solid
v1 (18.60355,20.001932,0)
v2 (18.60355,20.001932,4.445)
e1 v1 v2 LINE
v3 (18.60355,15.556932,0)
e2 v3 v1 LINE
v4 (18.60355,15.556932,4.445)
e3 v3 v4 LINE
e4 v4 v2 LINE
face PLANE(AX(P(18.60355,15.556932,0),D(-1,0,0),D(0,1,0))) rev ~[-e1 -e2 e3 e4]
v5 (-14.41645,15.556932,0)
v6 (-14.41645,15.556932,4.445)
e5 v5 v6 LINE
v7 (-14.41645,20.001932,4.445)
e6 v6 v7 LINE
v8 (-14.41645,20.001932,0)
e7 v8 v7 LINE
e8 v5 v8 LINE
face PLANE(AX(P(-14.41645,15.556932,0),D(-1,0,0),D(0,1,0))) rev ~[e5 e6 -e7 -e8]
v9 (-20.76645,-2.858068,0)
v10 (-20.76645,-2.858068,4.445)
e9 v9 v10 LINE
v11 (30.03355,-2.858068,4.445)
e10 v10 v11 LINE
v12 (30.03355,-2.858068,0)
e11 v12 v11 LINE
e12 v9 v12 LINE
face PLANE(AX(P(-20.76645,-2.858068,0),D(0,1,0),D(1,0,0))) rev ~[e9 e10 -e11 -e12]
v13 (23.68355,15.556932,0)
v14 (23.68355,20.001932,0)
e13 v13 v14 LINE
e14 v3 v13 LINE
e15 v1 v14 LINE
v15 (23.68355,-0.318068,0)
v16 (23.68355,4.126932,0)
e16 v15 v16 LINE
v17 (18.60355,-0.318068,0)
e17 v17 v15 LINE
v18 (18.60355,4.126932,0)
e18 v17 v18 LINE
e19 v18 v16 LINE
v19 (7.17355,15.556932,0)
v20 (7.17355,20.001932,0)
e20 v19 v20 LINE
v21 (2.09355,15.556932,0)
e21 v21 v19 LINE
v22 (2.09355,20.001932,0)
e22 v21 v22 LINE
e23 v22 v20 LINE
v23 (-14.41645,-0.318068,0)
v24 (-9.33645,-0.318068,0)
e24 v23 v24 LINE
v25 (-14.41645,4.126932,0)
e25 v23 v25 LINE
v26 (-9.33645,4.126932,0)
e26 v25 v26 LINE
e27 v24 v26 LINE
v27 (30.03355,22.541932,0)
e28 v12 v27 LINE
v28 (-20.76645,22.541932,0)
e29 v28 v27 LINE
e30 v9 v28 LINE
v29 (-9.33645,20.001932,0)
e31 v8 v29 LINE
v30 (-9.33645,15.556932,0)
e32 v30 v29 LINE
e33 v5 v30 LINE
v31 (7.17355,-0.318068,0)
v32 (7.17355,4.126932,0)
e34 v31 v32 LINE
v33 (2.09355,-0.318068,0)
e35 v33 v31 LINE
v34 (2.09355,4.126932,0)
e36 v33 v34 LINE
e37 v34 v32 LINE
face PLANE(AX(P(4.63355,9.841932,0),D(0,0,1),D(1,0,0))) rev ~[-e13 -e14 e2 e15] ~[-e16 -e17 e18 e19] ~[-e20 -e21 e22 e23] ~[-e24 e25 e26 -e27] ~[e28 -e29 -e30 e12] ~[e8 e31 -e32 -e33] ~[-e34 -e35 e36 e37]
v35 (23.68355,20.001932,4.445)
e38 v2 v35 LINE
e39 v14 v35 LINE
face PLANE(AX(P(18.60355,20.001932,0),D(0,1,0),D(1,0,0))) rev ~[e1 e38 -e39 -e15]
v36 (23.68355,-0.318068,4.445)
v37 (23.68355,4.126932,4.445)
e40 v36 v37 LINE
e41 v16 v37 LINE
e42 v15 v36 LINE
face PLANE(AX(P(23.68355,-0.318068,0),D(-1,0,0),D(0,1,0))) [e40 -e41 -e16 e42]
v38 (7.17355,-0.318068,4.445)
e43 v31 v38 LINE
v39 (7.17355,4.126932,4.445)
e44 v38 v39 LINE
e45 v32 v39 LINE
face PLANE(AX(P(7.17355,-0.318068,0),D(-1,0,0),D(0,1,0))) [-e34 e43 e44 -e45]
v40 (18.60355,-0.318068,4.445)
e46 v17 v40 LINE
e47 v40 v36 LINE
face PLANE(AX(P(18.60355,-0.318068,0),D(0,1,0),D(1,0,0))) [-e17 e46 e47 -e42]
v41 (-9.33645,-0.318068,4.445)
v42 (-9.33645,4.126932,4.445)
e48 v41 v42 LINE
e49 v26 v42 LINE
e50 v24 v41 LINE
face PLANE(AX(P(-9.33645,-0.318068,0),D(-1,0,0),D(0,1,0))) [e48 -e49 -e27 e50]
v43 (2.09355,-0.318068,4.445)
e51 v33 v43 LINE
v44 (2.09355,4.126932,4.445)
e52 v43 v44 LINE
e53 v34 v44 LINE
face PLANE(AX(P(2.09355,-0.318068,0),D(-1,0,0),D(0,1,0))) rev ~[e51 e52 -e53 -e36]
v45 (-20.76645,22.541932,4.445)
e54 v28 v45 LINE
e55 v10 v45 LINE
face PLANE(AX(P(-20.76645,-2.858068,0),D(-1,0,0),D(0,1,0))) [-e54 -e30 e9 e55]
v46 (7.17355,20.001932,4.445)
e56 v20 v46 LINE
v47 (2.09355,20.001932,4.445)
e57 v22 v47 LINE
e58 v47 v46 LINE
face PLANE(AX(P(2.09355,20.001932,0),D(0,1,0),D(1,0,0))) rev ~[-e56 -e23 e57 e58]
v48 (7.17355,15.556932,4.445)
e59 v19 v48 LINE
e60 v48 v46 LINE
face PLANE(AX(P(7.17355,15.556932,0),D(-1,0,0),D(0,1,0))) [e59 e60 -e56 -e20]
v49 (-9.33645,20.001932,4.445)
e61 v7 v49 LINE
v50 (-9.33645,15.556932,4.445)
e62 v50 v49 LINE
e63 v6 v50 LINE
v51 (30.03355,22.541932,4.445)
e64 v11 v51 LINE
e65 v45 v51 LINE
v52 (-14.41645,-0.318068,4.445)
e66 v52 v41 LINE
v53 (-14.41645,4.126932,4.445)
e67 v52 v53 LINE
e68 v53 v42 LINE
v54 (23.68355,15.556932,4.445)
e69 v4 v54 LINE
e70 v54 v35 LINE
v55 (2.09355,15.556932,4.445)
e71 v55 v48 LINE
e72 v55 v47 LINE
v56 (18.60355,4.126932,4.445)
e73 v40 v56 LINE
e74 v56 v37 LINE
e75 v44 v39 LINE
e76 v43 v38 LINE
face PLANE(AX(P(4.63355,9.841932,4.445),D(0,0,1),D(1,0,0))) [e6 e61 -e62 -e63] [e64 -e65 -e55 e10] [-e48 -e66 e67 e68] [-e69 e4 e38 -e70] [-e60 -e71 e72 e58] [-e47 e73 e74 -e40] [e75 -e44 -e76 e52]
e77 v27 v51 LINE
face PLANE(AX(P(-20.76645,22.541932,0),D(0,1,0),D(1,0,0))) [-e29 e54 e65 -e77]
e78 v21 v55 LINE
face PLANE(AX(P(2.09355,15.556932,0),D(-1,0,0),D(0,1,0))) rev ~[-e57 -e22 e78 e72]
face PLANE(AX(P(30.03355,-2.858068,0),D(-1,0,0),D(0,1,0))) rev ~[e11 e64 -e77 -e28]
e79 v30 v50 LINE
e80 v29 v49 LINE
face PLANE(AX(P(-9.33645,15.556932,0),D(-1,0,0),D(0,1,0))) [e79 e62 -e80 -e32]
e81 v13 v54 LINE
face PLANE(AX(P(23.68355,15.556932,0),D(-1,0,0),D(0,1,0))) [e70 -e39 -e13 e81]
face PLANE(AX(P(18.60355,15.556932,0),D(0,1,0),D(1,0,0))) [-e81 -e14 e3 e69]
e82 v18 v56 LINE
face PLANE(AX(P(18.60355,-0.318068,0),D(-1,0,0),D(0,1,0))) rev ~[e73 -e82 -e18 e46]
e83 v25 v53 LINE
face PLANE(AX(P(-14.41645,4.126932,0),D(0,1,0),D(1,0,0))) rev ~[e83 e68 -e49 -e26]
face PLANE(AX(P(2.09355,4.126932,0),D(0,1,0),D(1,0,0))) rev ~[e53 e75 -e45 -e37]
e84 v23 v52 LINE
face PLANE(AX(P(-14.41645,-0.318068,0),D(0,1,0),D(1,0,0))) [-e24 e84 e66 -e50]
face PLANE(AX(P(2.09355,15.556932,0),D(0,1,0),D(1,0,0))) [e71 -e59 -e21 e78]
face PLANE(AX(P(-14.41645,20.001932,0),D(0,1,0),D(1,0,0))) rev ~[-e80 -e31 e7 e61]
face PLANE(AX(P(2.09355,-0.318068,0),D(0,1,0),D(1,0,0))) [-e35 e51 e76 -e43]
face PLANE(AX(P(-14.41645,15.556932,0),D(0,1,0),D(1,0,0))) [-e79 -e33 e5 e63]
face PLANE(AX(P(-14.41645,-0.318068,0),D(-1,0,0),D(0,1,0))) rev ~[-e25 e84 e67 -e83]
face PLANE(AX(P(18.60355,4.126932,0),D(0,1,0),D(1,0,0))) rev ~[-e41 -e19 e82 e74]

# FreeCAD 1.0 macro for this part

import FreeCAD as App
import Part
import Sketcher
from FreeCAD import Vector
Q = App.Units.Quantity


def add_polygon(sketch, points):
    """Adds a closed chain of lines whose ends are joined by coincident constraints."""
    first, n = sketch.GeometryCount, len(points)
    for a, b in zip(points, points[1:] + points[:1]):
        sketch.addGeometry(Part.LineSegment(App.Vector(*a, 0), App.Vector(*b, 0)), False)
    for i in range(n):
        sketch.addConstraint(Sketcher.Constraint("Coincident", first + i, 2, first + (i + 1) % n, 1))

doc = App.newDocument("Part")
body = doc.addObject("PartDesign::Body", "Body")

# Sketch on XY plane
sketch1 = body.newObject("Sketcher::SketchObject", "Sketch")
sketch1.AttachmentSupport = (doc.getObject("XY_Plane"), [""])
sketch1.MapMode = "FlatFace"
add_polygon(sketch1, [(-20.76645, 22.541932), (-20.76645, -2.858068), (30.03355, -2.858068), (30.03355, 22.541932)])  # lines 0-3
add_polygon(sketch1, [(-9.33645, -0.318068), (-14.41645, -0.318068), (-14.41645, 4.126932), (-9.33645, 4.126932)])  # lines 4-7
add_polygon(sketch1, [(7.17355, -0.318068), (2.09355, -0.318068), (2.09355, 4.126932), (7.17355, 4.126932)])  # lines 8-11
add_polygon(sketch1, [(23.68355, -0.318068), (18.60355, -0.318068), (18.60355, 4.126932), (23.68355, 4.126932)])  # lines 12-15
add_polygon(sketch1, [(-9.33645, 15.556932), (-14.41645, 15.556932), (-14.41645, 20.001932), (-9.33645, 20.001932)])  # lines 16-19
add_polygon(sketch1, [(7.17355, 15.556932), (2.09355, 15.556932), (2.09355, 20.001932), (7.17355, 20.001932)])  # lines 20-23
add_polygon(sketch1, [(23.68355, 15.556932), (18.60355, 15.556932), (18.60355, 20.001932), (23.68355, 20.001932)])  # lines 24-27
sketch1.addConstraint(Sketcher.Constraint("Vertical", 0))
sketch1.addConstraint(Sketcher.Constraint("Horizontal", 1))
sketch1.addConstraint(Sketcher.Constraint("Vertical", 2))
sketch1.addConstraint(Sketcher.Constraint("Horizontal", 3))
sketch1.addConstraint(Sketcher.Constraint("Horizontal", 4))
sketch1.addConstraint(Sketcher.Constraint("Vertical", 5))
sketch1.addConstraint(Sketcher.Constraint("Horizontal", 6))
sketch1.addConstraint(Sketcher.Constraint("Vertical", 7))
sketch1.addConstraint(Sketcher.Constraint("Horizontal", 8))
sketch1.addConstraint(Sketcher.Constraint("Vertical", 9))
sketch1.addConstraint(Sketcher.Constraint("Horizontal", 10))
sketch1.addConstraint(Sketcher.Constraint("Vertical", 11))
sketch1.addConstraint(Sketcher.Constraint("Horizontal", 12))
sketch1.addConstraint(Sketcher.Constraint("Vertical", 13))
sketch1.addConstraint(Sketcher.Constraint("Horizontal", 14))
sketch1.addConstraint(Sketcher.Constraint("Vertical", 15))
sketch1.addConstraint(Sketcher.Constraint("Horizontal", 16))
sketch1.addConstraint(Sketcher.Constraint("Vertical", 17))
sketch1.addConstraint(Sketcher.Constraint("Horizontal", 18))
sketch1.addConstraint(Sketcher.Constraint("Vertical", 19))
sketch1.addConstraint(Sketcher.Constraint("Horizontal", 20))
sketch1.addConstraint(Sketcher.Constraint("Vertical", 21))
sketch1.addConstraint(Sketcher.Constraint("Horizontal", 22))
sketch1.addConstraint(Sketcher.Constraint("Vertical", 23))
sketch1.addConstraint(Sketcher.Constraint("Horizontal", 24))
sketch1.addConstraint(Sketcher.Constraint("Vertical", 25))
sketch1.addConstraint(Sketcher.Constraint("Horizontal", 26))
sketch1.addConstraint(Sketcher.Constraint("Vertical", 27))
sketch1.addConstraint(Sketcher.Constraint("Horizontal", 7, 2, 8, 2))
sketch1.addConstraint(Sketcher.Constraint("Horizontal", 6, 2, 9, 2))
sketch1.addConstraint(Sketcher.Constraint("Horizontal", 11, 2, 12, 2))
sketch1.addConstraint(Sketcher.Constraint("Horizontal", 10, 2, 13, 2))
sketch1.addConstraint(Sketcher.Constraint("Horizontal", 19, 2, 20, 2))
sketch1.addConstraint(Sketcher.Constraint("Horizontal", 18, 2, 21, 2))
sketch1.addConstraint(Sketcher.Constraint("Horizontal", 23, 2, 24, 2))
sketch1.addConstraint(Sketcher.Constraint("Horizontal", 22, 2, 25, 2))
sketch1.addConstraint(Sketcher.Constraint("Vertical", 5, 2, 16, 2))
sketch1.addConstraint(Sketcher.Constraint("Vertical", 7, 2, 18, 2))
sketch1.addConstraint(Sketcher.Constraint("Vertical", 9, 2, 20, 2))
sketch1.addConstraint(Sketcher.Constraint("Vertical", 11, 2, 22, 2))
sketch1.addConstraint(Sketcher.Constraint("Vertical", 13, 2, 24, 2))
sketch1.addConstraint(Sketcher.Constraint("Vertical", 15, 2, 26, 2))
sketch1.addConstraint(Sketcher.Constraint("Equal", 6, 8))
sketch1.addConstraint(Sketcher.Constraint("Equal", 10, 12))
sketch1.addConstraint(Sketcher.Constraint("Equal", 15, 17))
sketch1.addConstraint(Sketcher.Constraint("DistanceX", 1, 1, 1, 2, Q("2 in")))
sketch1.addConstraint(Sketcher.Constraint("DistanceY", 0, 2, 0, 1, Q("1 in")))
sketch1.addConstraint(Sketcher.Constraint("DistanceX", 4, 2, 4, 1, Q("0.2 in")))
sketch1.addConstraint(Sketcher.Constraint("DistanceY", 0, 2, 4, 2, Q("0.1 in")))
sketch1.addConstraint(Sketcher.Constraint("DistanceX", 0, 2, 8, 2, Q("0.9 in")))
sketch1.addConstraint(Sketcher.Constraint("DistanceY", 17, 2, 3, 2, Q("0.1 in")))
sketch1.addConstraint(Sketcher.Constraint("DistanceY", 5, 1, 5, 2, Q("0.175 in")))
sketch1.addConstraint(Sketcher.Constraint("DistanceX", 0, 2, 4, 2, Q("0.25 in")))
sketch1.addConstraint(Sketcher.Constraint("DistanceX", 11, 2, 12, 2, Q("0.45 in")))
sketch1.addConstraint(Sketcher.Constraint("DistanceX", 0, 2, -1, 1, Q("20.76645 mm")))
sketch1.addConstraint(Sketcher.Constraint("DistanceY", -1, 1, 2, 2, Q("22.541932 mm")))
pad1 = body.newObject("PartDesign::Pad", "Pad")
pad1.Profile = sketch1
pad1.Length = Q("0.175 in")

doc.recompute()
